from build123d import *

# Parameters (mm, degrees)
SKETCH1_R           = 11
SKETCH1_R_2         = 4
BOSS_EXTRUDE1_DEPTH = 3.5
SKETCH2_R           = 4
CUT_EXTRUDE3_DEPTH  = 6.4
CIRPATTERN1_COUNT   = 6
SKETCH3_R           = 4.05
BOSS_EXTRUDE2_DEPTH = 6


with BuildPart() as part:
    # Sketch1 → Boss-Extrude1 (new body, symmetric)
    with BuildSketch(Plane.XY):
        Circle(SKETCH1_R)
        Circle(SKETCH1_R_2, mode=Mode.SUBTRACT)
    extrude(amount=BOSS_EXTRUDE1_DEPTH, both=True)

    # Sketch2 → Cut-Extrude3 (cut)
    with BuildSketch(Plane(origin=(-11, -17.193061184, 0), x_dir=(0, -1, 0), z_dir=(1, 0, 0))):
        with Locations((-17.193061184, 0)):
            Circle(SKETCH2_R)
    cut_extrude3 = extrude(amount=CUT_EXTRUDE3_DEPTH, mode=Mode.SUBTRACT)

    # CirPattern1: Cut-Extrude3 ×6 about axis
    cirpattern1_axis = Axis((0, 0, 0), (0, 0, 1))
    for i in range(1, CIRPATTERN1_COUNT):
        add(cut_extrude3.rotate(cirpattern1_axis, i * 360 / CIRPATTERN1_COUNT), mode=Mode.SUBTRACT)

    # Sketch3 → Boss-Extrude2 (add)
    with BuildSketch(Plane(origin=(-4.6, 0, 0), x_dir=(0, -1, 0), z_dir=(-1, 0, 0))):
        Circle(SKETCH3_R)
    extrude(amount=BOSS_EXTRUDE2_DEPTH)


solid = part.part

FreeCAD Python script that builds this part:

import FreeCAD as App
import Part
import Sketcher

V = App.Vector

doc = App.newDocument("Part")
body = doc.addObject("PartDesign::Body", "Body")

sketch1 = doc.addObject("Sketcher::SketchObject", "Sketch")
body.addObject(sketch1)
sketch1.AttachmentSupport = (doc.XY_Plane, [""])
sketch1.MapMode = "FlatFace"
sketch1.addGeometry(Part.Circle(V(0, 0, 0), V(0, 0, 1), 11), False)
sketch1.addGeometry(Part.Circle(V(0, 0, 0), V(0, 0, 1), 4), False)
sketch1.addConstraint(Sketcher.Constraint("Coincident", 0, 3, -1, 1))
sketch1.addConstraint(Sketcher.Constraint("Coincident", 1, 3, -1, 1))
sketch1.addConstraint(Sketcher.Constraint("Diameter", 0, 22.0))
sketch1.addConstraint(Sketcher.Constraint("Diameter", 1, 8.0))
pad1 = doc.addObject("PartDesign::Pad", "Pad")
body.addObject(pad1)
pad1.Profile = sketch1
pad1.Length = 7
pad1.Midplane = True

sketch2 = doc.addObject("Sketcher::SketchObject", "Sketch001")
body.addObject(sketch2)
sketch2.AttachmentSupport = (doc.YZ_Plane, [""])
sketch2.MapMode = "FlatFace"
sketch2.AttachmentOffset = App.Placement(V(0, 0, -11), App.Rotation())
sketch2.addGeometry(Part.Circle(V(0, 0, 0), V(0, 0, 1), 4), False)
sketch2.addConstraint(Sketcher.Constraint("Coincident", 0, 3, -1, 1))
sketch2.addConstraint(Sketcher.Constraint("Diameter", 0, 8.0))
pocket1 = doc.addObject("PartDesign::Pocket", "Pocket")
body.addObject(pocket1)
pocket1.Profile = sketch2
pocket1.Length = 6.4
pocket1.Reversed = True
doc.recompute()

polarpattern = doc.addObject("PartDesign::PolarPattern", "PolarPattern")
body.addObject(polarpattern)
polarpattern.Originals = [pocket1]
polarpattern.Axis = (doc.Z_Axis, [""])
polarpattern.Angle = 360
polarpattern.Occurrences = 6
body.Tip = polarpattern

sketch3 = doc.addObject("Sketcher::SketchObject", "Sketch002")
body.addObject(sketch3)
sketch3.AttachmentSupport = (doc.YZ_Plane, [""])
sketch3.MapMode = "FlatFace"
sketch3.AttachmentOffset = App.Placement(V(0, 0, -4.6), App.Rotation())
sketch3.addGeometry(Part.Circle(V(0, 0, 0), V(0, 0, 1), 4.05), False)
sketch3.addConstraint(Sketcher.Constraint("Coincident", 0, 3, -1, 1))
sketch3.addConstraint(Sketcher.Constraint("Diameter", 0, 8.1))
pad2 = doc.addObject("PartDesign::Pad", "Pad001")
body.addObject(pad2)
pad2.Profile = sketch3
pad2.Length = 6
pad2.Reversed = True

doc.recompute()
